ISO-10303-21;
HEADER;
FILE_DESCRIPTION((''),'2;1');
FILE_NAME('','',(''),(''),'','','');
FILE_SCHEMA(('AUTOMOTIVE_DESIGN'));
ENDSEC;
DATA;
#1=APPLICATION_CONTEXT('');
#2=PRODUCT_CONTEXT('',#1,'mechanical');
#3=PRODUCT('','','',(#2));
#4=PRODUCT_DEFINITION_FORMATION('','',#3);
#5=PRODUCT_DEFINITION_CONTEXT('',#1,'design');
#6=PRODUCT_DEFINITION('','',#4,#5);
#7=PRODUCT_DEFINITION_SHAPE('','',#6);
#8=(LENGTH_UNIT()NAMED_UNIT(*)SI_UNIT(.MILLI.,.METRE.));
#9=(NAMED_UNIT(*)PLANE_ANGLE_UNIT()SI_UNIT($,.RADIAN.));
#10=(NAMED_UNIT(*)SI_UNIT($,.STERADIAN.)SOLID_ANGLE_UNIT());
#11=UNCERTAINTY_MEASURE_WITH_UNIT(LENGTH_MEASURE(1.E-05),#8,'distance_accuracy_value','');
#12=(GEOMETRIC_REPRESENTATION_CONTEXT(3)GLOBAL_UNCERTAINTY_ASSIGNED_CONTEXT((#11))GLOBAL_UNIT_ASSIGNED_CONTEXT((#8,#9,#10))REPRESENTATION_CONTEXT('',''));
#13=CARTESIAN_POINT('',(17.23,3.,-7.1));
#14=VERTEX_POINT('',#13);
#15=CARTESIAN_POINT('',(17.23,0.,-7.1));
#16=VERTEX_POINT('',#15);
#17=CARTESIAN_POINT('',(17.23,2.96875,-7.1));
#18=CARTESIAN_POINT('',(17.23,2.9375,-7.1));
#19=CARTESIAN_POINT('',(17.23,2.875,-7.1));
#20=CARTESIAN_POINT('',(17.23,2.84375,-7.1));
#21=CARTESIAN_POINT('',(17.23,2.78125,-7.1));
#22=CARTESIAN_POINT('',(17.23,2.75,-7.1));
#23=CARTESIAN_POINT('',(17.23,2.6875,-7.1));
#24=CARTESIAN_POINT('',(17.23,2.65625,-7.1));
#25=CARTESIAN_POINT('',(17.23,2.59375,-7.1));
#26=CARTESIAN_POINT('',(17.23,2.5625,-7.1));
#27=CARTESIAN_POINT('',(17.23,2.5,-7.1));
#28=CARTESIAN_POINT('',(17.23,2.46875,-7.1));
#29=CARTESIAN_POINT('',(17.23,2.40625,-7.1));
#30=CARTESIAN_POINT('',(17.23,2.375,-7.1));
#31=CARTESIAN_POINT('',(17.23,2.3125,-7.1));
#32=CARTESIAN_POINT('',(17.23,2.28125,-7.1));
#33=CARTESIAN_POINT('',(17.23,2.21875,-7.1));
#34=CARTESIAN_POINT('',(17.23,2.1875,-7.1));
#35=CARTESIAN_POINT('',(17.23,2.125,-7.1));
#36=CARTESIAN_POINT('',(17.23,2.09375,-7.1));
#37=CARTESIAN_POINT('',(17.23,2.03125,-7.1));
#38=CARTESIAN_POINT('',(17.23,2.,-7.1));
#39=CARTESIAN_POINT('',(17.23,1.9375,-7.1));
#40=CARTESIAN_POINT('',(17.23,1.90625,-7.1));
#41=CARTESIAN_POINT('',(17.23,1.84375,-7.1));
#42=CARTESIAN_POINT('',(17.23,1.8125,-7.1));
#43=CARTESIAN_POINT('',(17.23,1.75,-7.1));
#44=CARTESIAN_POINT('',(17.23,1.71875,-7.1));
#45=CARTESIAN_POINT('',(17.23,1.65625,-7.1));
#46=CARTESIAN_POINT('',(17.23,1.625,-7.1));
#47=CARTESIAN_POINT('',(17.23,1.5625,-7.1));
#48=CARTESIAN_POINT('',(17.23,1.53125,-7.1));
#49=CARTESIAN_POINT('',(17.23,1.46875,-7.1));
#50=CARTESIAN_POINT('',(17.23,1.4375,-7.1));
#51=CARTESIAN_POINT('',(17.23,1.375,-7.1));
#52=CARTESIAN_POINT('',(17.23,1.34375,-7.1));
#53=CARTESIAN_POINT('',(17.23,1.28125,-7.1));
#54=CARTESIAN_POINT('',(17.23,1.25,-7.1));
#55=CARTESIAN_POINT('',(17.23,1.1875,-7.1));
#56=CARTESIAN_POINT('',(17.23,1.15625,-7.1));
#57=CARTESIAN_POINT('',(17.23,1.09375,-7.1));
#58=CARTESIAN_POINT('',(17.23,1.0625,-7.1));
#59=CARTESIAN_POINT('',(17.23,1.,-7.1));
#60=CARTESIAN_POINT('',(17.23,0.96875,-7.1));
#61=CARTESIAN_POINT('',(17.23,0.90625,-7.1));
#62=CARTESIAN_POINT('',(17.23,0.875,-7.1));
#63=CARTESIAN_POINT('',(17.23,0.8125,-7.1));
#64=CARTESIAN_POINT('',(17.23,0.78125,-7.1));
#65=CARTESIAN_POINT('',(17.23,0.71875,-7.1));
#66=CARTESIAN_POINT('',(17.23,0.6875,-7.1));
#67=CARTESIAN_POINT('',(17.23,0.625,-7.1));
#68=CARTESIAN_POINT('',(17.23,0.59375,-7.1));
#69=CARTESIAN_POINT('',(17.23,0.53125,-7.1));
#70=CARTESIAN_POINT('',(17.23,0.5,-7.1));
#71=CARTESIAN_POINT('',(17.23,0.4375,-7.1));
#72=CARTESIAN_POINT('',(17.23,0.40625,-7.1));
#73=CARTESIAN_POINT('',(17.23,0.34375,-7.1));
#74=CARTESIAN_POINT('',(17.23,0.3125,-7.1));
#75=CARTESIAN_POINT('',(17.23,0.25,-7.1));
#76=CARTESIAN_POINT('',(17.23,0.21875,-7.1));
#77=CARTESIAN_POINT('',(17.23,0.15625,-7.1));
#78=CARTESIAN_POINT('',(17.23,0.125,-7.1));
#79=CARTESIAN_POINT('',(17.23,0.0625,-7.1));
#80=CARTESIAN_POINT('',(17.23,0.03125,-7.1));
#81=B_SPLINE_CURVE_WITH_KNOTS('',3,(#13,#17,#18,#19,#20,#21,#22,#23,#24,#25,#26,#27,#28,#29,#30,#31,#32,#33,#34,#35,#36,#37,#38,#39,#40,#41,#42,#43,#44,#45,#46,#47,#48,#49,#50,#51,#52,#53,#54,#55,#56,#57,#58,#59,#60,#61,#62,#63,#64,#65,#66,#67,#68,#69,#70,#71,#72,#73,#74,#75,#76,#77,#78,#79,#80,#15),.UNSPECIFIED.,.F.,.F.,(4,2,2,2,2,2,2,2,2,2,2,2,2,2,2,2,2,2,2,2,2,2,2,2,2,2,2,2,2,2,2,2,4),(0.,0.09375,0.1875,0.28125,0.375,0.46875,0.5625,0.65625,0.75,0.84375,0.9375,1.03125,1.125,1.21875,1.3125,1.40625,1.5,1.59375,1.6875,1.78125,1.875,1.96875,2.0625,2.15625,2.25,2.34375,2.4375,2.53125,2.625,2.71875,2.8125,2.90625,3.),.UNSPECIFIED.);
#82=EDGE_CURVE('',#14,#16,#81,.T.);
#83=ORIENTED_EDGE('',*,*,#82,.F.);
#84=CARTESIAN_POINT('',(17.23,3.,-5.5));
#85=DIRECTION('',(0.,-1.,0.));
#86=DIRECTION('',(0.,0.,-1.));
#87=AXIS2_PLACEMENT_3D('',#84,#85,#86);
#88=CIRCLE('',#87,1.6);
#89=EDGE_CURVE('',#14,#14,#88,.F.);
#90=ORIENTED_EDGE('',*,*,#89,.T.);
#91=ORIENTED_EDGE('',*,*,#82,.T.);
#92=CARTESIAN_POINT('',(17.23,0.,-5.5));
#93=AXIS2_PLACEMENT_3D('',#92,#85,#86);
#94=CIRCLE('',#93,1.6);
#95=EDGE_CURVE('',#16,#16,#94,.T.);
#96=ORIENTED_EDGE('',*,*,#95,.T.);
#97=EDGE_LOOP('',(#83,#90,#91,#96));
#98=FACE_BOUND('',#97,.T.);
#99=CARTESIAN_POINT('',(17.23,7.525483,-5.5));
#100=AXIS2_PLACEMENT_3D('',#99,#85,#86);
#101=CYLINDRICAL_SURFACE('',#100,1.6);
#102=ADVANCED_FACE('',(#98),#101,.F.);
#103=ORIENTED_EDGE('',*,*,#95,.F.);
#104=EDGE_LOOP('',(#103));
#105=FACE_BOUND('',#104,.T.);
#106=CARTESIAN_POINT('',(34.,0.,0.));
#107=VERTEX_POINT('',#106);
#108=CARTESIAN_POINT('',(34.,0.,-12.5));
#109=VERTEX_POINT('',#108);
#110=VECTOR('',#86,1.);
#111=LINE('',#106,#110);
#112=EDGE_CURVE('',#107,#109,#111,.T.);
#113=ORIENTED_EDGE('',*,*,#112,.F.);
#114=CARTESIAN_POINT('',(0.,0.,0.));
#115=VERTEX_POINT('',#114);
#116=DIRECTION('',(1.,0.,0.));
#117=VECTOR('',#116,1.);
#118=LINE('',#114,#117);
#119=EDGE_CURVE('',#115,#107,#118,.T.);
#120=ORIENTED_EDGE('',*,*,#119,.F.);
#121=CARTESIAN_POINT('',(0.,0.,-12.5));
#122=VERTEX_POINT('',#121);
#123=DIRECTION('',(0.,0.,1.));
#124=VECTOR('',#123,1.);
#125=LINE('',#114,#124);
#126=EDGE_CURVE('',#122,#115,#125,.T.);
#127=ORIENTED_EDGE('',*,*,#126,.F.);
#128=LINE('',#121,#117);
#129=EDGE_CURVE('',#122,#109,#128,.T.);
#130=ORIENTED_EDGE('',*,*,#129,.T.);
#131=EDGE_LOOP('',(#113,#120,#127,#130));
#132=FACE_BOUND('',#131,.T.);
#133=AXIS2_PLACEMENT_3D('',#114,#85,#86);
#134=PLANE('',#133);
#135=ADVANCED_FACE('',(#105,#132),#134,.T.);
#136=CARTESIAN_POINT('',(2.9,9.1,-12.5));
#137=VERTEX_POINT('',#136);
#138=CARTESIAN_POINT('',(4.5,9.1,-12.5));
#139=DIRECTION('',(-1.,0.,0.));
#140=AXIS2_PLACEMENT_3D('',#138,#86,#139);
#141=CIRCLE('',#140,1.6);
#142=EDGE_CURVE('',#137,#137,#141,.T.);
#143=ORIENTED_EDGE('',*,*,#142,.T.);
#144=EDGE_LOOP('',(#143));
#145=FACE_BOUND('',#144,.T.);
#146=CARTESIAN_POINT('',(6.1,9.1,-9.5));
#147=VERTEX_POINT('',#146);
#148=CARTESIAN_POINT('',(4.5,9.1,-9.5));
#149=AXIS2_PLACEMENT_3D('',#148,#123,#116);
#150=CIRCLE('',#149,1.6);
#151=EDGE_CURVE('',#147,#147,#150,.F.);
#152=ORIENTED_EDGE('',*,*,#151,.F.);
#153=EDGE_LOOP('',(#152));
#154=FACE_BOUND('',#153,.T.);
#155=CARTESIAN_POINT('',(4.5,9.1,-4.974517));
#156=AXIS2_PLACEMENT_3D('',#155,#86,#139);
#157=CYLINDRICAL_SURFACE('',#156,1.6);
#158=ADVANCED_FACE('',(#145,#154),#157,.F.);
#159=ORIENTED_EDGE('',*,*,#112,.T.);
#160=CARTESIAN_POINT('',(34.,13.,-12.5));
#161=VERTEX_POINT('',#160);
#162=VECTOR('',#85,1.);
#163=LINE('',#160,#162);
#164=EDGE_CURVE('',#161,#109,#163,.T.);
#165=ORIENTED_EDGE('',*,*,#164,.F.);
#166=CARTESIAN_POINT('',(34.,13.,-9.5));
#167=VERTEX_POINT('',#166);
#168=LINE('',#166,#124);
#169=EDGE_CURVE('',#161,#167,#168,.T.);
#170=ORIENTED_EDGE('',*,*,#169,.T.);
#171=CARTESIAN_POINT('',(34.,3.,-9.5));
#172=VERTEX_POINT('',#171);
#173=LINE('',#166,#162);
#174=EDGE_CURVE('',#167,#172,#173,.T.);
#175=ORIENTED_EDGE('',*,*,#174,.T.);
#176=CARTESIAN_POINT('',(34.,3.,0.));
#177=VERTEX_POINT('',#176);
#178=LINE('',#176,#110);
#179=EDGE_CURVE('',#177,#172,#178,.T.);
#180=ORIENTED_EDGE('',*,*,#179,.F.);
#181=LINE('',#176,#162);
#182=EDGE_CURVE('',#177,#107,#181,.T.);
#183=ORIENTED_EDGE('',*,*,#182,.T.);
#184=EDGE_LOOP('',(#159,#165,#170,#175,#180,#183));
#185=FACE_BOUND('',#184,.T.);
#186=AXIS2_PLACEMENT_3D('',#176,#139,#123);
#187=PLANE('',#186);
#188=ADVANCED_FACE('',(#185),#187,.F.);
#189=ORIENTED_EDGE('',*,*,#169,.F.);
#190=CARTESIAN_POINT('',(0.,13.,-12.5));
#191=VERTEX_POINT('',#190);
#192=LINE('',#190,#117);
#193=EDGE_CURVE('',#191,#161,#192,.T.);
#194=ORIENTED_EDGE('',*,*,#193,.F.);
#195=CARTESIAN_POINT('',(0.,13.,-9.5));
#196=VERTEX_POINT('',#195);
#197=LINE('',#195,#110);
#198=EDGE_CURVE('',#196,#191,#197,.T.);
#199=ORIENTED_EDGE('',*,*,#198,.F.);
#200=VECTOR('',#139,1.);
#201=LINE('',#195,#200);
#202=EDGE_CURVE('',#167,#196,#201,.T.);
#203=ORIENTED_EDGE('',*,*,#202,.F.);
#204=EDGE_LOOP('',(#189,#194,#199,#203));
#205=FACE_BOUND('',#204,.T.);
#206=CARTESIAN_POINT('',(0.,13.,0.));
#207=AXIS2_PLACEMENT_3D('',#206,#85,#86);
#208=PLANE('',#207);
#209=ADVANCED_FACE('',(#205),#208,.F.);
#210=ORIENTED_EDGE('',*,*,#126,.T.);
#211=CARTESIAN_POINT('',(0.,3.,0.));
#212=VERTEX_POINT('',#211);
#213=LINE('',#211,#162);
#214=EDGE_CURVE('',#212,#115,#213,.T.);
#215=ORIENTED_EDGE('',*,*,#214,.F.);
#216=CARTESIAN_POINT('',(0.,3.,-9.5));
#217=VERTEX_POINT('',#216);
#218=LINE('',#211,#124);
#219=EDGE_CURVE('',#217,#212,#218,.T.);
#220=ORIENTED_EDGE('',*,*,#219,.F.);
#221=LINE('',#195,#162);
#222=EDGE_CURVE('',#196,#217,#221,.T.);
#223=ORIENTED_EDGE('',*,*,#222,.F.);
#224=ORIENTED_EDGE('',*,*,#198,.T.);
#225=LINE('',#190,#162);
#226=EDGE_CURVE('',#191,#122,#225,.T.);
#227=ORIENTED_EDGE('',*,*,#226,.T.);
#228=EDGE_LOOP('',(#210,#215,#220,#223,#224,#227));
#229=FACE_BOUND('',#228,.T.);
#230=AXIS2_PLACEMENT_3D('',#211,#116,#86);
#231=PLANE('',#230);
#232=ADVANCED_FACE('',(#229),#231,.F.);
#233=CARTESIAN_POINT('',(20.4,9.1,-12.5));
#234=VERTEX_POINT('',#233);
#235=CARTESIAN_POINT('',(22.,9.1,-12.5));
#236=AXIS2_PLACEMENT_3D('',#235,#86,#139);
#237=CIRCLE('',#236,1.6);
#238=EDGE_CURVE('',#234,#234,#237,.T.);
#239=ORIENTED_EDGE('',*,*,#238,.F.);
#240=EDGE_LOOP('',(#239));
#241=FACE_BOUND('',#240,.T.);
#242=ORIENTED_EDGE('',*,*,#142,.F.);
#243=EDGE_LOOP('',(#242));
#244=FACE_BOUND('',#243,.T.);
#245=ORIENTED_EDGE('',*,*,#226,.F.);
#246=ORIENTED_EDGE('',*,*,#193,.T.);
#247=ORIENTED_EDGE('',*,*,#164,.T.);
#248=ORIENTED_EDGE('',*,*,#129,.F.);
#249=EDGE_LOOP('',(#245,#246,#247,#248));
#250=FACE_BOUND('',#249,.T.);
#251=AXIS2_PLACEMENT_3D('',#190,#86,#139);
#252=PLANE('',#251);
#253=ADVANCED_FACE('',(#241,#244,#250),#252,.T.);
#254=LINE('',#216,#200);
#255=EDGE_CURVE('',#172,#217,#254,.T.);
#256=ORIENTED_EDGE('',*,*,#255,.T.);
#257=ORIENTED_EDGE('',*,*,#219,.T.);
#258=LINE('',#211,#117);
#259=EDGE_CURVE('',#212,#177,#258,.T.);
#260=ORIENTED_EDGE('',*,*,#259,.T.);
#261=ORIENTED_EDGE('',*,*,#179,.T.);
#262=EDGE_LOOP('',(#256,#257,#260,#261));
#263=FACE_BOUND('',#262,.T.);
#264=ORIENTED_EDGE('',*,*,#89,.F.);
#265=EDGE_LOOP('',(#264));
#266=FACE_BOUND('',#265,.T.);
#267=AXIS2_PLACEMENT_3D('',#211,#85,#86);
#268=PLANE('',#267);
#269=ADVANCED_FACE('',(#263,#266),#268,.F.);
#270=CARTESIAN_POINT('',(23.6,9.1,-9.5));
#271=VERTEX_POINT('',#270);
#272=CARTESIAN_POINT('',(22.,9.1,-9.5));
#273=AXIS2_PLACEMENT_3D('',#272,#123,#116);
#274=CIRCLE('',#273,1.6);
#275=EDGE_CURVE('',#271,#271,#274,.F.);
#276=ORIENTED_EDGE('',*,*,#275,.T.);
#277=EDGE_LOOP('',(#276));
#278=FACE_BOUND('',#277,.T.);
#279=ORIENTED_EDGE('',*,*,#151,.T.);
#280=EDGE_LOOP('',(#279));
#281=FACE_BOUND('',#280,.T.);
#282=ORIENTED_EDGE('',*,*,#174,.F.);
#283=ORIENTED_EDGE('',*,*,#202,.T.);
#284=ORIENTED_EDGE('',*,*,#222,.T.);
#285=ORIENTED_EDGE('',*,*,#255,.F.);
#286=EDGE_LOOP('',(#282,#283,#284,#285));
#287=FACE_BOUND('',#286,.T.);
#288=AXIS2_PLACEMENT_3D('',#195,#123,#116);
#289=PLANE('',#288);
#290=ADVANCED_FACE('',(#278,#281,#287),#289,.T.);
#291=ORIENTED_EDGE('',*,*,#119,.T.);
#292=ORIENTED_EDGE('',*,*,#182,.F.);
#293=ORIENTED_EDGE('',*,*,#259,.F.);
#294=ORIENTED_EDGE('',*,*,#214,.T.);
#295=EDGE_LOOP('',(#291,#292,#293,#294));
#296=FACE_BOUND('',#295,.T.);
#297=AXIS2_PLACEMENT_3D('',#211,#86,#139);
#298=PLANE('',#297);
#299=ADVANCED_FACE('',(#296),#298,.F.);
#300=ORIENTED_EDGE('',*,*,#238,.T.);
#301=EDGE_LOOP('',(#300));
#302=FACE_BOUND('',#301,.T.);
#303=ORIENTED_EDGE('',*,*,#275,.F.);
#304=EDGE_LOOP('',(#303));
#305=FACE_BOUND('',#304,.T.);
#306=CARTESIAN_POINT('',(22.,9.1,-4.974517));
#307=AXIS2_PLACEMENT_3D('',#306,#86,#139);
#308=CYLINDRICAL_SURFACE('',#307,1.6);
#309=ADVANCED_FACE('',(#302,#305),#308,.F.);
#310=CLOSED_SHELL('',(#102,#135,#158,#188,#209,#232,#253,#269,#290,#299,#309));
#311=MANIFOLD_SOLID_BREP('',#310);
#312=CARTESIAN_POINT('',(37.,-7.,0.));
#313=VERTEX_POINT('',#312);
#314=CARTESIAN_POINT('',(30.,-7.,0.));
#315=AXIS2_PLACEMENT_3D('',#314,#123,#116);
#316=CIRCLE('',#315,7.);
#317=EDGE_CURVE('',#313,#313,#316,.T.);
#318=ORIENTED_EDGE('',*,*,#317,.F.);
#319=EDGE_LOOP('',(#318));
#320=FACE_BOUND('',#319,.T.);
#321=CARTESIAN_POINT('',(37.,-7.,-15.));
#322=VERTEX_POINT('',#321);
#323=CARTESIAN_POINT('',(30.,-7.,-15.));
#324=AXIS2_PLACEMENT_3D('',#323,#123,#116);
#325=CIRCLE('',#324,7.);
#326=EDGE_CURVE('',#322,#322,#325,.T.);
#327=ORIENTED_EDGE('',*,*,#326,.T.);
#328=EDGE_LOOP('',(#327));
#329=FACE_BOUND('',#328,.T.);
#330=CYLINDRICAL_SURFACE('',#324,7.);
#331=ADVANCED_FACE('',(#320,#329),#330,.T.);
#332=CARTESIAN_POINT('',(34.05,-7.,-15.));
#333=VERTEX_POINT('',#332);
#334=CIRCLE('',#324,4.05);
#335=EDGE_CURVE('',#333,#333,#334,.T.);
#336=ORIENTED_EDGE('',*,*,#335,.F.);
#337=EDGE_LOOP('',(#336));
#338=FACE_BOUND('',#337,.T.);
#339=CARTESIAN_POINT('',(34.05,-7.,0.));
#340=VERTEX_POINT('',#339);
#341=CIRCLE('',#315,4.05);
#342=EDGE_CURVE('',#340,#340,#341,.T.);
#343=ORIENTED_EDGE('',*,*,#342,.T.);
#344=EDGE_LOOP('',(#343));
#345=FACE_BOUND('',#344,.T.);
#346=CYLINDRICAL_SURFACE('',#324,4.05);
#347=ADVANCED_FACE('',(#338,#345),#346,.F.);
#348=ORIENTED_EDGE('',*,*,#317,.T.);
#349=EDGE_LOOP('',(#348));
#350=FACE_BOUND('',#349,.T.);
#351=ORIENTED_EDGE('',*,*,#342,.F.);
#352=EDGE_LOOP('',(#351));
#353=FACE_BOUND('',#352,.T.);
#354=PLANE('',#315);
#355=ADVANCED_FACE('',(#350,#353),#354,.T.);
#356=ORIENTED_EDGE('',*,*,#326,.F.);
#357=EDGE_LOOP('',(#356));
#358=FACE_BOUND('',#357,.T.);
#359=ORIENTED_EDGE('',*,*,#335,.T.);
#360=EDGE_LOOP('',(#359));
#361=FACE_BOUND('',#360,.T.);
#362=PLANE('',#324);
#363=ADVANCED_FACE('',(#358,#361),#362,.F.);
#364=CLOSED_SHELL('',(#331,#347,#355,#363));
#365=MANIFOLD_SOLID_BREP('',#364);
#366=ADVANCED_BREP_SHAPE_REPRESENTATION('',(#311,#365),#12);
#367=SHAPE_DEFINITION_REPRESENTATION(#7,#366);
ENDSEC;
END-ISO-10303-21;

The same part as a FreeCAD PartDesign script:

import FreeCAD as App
import Part
import Sketcher

V = App.Vector


def add_polygon(sketch, points):
    """Adds a closed chain of lines whose ends are joined by coincident constraints."""
    first, n = sketch.GeometryCount, len(points)
    for a, b in zip(points, points[1:] + points[:1]):
        sketch.addGeometry(Part.LineSegment(App.Vector(*a, 0), App.Vector(*b, 0)), False)
    for i in range(n):
        sketch.addConstraint(Sketcher.Constraint("Coincident", first + i, 2, first + (i + 1) % n, 1))

doc = App.newDocument("Part")
params = doc.addObject("Spreadsheet::Sheet", "Params")
for row, (alias, value) in enumerate([
    ("sketch1_width", "34 mm"),
    ("sketch1_height", "9.5 mm"),
    ("pad1_length", "3 mm"),
    ("sketch2_width", "34 mm"),
    ("sketch2_height", "3 mm"),
    ("pad2_length", "13 mm"),
    ("sketch3_diameter", "3.2 mm"),
    ("pocket1_length", "3 mm"),
    ("sketch4_diameter", "3.2 mm"),
    ("pocket2_length", "3 mm"),
    ("sketch5_diameter", "14 mm"),
    ("pad3_length", "15 mm"),
    ("sketch6_diameter", "8.1 mm"),
], start=1):
    params.set(f"A{row}", alias)
    params.set(f"B{row}", "=" + value)
    params.setAlias(f"B{row}", alias)

body = doc.addObject("PartDesign::Body", "Body")

# Sketch on XZ plane
sketch1 = body.newObject("Sketcher::SketchObject", "Sketch")
sketch1.AttachmentSupport = (doc.getObject("XZ_Plane"), [""])
sketch1.MapMode = "FlatFace"
add_polygon(sketch1, [(0, -10), (0, 0), (34, 0), (34, -10)])  # lines 0-3
sketch1.addConstraint([
    Sketcher.Constraint("Vertical", 0),
    Sketcher.Constraint("Horizontal", 1),
    Sketcher.Constraint("Vertical", 2),
    Sketcher.Constraint("Horizontal", 3),
    Sketcher.Constraint("Coincident", 0, 2, -1, 1),
    Sketcher.Constraint("DistanceX", 1, 1, 1, 2, 34.0),
    Sketcher.Constraint("DistanceY", 0, 1, 0, 2, 9.5),
])
sketch1.setExpression("Constraints[9]", "Params.sketch1_width")
sketch1.setExpression("Constraints[10]", "Params.sketch1_height")
pad1 = body.newObject("PartDesign::Pad", "Pad")
pad1.Profile = sketch1
pad1.setExpression("Length", "Params.pad1_length")
pad1.Reversed = True

# Sketch on XZ plane
sketch2 = body.newObject("Sketcher::SketchObject", "Sketch001")
sketch2.AttachmentSupport = (doc.getObject("XZ_Plane"), [""])
sketch2.MapMode = "FlatFace"
add_polygon(sketch2, [(0, -9.5), (0, -12.5), (34, -12.5), (34, -9.5)])  # lines 0-3
sketch2.addConstraint([
    Sketcher.Constraint("Vertical", 0),
    Sketcher.Constraint("Horizontal", 1),
    Sketcher.Constraint("Vertical", 2),
    Sketcher.Constraint("Horizontal", 3),
    Sketcher.Constraint("PointOnObject", 0, 2, -2),
    Sketcher.Constraint("DistanceX", 1, 1, 1, 2, 34.0),
    Sketcher.Constraint("DistanceY", 0, 2, 0, 1, 3.0),
    Sketcher.Constraint("DistanceY", 0, 2, -1, 1, 12.5),
])
sketch2.setExpression("Constraints[9]", "Params.sketch2_width")
sketch2.setExpression("Constraints[10]", "Params.sketch2_height")
pad2 = body.newObject("PartDesign::Pad", "Pad001")
pad2.Profile = sketch2
pad2.setExpression("Length", "Params.pad2_length")
pad2.Reversed = True

# Sketch on XY plane
sketch3 = body.newObject("Sketcher::SketchObject", "Sketch002")
sketch3.AttachmentSupport = (doc.getObject("XY_Plane"), [""])
sketch3.MapMode = "FlatFace"
sketch3.AttachmentOffset = App.Placement(V(0, 0, -12.5), App.Rotation())
sketch3.addGeometry([
    Part.Circle(V(4.5, 9.1, 0), V(0, 0, 1), 1.6),
    Part.Circle(V(22, 9.1, 0), V(0, 0, 1), 1.6),
], False)
sketch3.addConstraint([
    Sketcher.Constraint("Equal", 0, 1),
    Sketcher.Constraint("Horizontal", 0, 3, 1, 3),
    Sketcher.Constraint("Diameter", 0, 3.2),
    Sketcher.Constraint("DistanceX", -1, 1, 1, 3, 22.0),
    Sketcher.Constraint("DistanceX", -1, 1, 0, 3, 4.5),
    Sketcher.Constraint("DistanceY", -1, 1, 0, 3, 9.1),
])
sketch3.setExpression("Constraints[2]", "Params.sketch3_diameter")
pocket1 = body.newObject("PartDesign::Pocket", "Pocket")
pocket1.Profile = sketch3
pocket1.setExpression("Length", "Params.pocket1_length")
pocket1.Reversed = True

# Sketch on XZ plane
sketch4 = body.newObject("Sketcher::SketchObject", "Sketch003")
sketch4.AttachmentSupport = (doc.getObject("XZ_Plane"), [""])
sketch4.MapMode = "FlatFace"
sketch4.addGeometry(Part.Circle(V(17.2, -5.5, 0), V(0, 0, 1), 1.6), False)
sketch4.addConstraint([
    Sketcher.Constraint("Diameter", 0, 3.2),
    Sketcher.Constraint("DistanceY", 0, 3, -1, 1, 5.5),
    Sketcher.Constraint("DistanceX", -1, 1, 0, 3, 17.23),
])
sketch4.setExpression("Constraints[0]", "Params.sketch4_diameter")
pocket2 = body.newObject("PartDesign::Pocket", "Pocket001")
pocket2.Profile = sketch4
pocket2.setExpression("Length", "Params.pocket2_length")
body2 = doc.addObject("PartDesign::Body", "Body001")

# Sketch on XY plane
sketch5 = body2.newObject("Sketcher::SketchObject", "Sketch004")
sketch5.AttachmentSupport = (doc.getObject("XY_Plane001"), [""])
sketch5.MapMode = "FlatFace"
sketch5.addGeometry(Part.Circle(V(30, -7, 0), V(0, 0, 1), 7), False)
sketch5.addConstraint([
    Sketcher.Constraint("Diameter", 0, 14.0),
    Sketcher.Constraint("DistanceX", -1, 1, 0, 3, 30.0),
    Sketcher.Constraint("DistanceY", 0, 3, -1, 1, 7.0),
])
sketch5.setExpression("Constraints[0]", "Params.sketch5_diameter")
pad3 = body2.newObject("PartDesign::Pad", "Pad002")
pad3.Profile = sketch5
pad3.setExpression("Length", "Params.pad3_length")
pad3.Reversed = True

# Sketch on XY plane
sketch6 = body2.newObject("Sketcher::SketchObject", "Sketch005")
sketch6.AttachmentSupport = (doc.getObject("XY_Plane001"), [""])
sketch6.MapMode = "FlatFace"
sketch6.addGeometry(Part.Circle(V(30, -7, 0), V(0, 0, 1), 4), False)
sketch6.addConstraint([
    Sketcher.Constraint("Diameter", 0, 8.1),
    Sketcher.Constraint("DistanceX", -1, 1, 0, 3, 30.0),
    Sketcher.Constraint("DistanceY", 0, 3, -1, 1, 7.0),
])
sketch6.setExpression("Constraints[0]", "Params.sketch6_diameter")
pocket3 = body2.newObject("PartDesign::Pocket", "Pocket002")
pocket3.Profile = sketch6
pocket3.Type = "ThroughAll"

doc.recompute()
